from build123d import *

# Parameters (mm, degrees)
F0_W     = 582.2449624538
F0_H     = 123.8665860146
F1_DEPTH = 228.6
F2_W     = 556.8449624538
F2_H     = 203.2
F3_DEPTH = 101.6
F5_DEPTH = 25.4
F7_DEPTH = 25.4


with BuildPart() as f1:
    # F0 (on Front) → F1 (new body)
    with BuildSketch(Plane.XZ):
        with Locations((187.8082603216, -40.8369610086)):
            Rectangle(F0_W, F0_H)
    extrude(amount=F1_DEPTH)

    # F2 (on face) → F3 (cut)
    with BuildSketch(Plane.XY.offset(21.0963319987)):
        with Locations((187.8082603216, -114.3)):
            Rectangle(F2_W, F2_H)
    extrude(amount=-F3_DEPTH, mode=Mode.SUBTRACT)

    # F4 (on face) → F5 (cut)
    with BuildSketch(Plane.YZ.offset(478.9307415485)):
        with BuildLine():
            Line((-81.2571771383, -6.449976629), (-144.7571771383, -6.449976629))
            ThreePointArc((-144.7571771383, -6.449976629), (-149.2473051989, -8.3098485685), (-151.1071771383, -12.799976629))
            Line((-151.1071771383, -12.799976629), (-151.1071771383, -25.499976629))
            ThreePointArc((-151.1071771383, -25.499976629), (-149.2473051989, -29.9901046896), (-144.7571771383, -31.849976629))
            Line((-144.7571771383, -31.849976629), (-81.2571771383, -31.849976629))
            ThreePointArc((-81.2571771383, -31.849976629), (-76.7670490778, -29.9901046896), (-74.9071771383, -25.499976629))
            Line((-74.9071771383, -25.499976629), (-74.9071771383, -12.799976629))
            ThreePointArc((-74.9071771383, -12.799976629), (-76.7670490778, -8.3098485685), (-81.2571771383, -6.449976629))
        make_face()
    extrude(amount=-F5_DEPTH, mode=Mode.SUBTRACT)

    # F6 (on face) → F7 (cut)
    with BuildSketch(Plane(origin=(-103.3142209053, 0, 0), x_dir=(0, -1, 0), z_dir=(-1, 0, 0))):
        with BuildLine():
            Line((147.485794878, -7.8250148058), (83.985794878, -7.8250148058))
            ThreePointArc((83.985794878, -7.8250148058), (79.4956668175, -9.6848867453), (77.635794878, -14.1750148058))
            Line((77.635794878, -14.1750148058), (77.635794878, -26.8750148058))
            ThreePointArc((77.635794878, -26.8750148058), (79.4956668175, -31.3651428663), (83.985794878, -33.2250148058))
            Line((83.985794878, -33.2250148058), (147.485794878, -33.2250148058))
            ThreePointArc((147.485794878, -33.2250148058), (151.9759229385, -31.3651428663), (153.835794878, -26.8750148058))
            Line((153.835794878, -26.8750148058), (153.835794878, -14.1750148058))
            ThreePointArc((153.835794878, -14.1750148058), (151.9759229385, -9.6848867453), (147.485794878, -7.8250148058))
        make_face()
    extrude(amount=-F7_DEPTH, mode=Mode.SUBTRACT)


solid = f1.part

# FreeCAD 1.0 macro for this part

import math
import FreeCAD as App
import Part
import Sketcher
Q = App.Units.Quantity


def add_polygon(sketch, points):
    """Adds a closed chain of lines whose ends are joined by coincident constraints."""
    first, n = sketch.GeometryCount, len(points)
    for a, b in zip(points, points[1:] + points[:1]):
        sketch.addGeometry(Part.LineSegment(App.Vector(*a, 0), App.Vector(*b, 0)), False)
    for i in range(n):
        sketch.addConstraint(Sketcher.Constraint("Coincident", first + i, 2, first + (i + 1) % n, 1))

doc = App.newDocument("Part")
body = doc.addObject("PartDesign::Body", "Body")

sketch1 = doc.addObject("Sketcher::SketchObject", "Sketch")
body.addObject(sketch1)
sketch1.AttachmentSupport = (doc.XZ_Plane, [""])
sketch1.MapMode = "FlatFace"
add_polygon(sketch1, [(-103.314221, 21.096332), (-103.314221, -102.770254), (478.930742, -102.770254), (478.930742, 21.096332)])
sketch1.addConstraint([
    Sketcher.Constraint("Vertical", 0),
    Sketcher.Constraint("Horizontal", 1),
    Sketcher.Constraint("Vertical", 2),
    Sketcher.Constraint("Horizontal", 3),
    Sketcher.Constraint("DistanceX", 1, 1, 1, 2, 582.244962),
    Sketcher.Constraint("DistanceY", 0, 2, 0, 1, 123.866586),
    Sketcher.Constraint("DistanceX", 0, 2, -1, 1, 103.314221),
    Sketcher.Constraint("DistanceY", -1, 1, 2, 2, 21.096332),
])
pad1 = doc.addObject("PartDesign::Pad", "Pad")
body.addObject(pad1)
pad1.Profile = sketch1
pad1.Length = Q("9 in")

sketch2 = doc.addObject("Sketcher::SketchObject", "Sketch001")
body.addObject(sketch2)
sketch2.AttachmentSupport = (doc.XY_Plane, [""])
sketch2.MapMode = "FlatFace"
sketch2.AttachmentOffset = App.Placement(App.Vector(0, 0, 21.096332), App.Rotation())
add_polygon(sketch2, [(-90.614221, -12.7), (-90.614221, -215.9), (466.230742, -215.9), (466.230742, -12.7)])
sketch2.addConstraint([
    Sketcher.Constraint("Vertical", 0),
    Sketcher.Constraint("Horizontal", 1),
    Sketcher.Constraint("Vertical", 2),
    Sketcher.Constraint("Horizontal", 3),
    Sketcher.Constraint("DistanceY", 0, 2, 0, 1, Q("8 in")),
    Sketcher.Constraint("DistanceY", 0, 2, -1, 1, Q("8.5 in")),
    Sketcher.Constraint("DistanceX", 1, 1, 1, 2, 556.844962),
    Sketcher.Constraint("DistanceX", 0, 2, -1, 1, 90.614221),
])
pocket1 = doc.addObject("PartDesign::Pocket", "Pocket")
body.addObject(pocket1)
pocket1.Profile = sketch2
pocket1.Length = Q("4 in")

sketch3 = doc.addObject("Sketcher::SketchObject", "Sketch002")
body.addObject(sketch3)
sketch3.AttachmentSupport = (doc.YZ_Plane, [""])
sketch3.MapMode = "FlatFace"
sketch3.AttachmentOffset = App.Placement(App.Vector(0, 0, 478.930742), App.Rotation())
sketch3.addGeometry([
    Part.LineSegment(App.Vector(-81.257177, -6.449977, 0), App.Vector(-144.757177, -6.449977, 0)),
    Part.ArcOfCircle(Part.Circle(App.Vector(-144.757177, -12.799977, 0), App.Vector(0, 0, 1), 6.35), math.radians(90), math.radians(180)),
    Part.LineSegment(App.Vector(-151.107177, -12.799977, 0), App.Vector(-151.107177, -25.499977, 0)),
    Part.ArcOfCircle(Part.Circle(App.Vector(-144.757177, -25.499977, 0), App.Vector(0, 0, 1), 6.35), math.radians(180), math.radians(270)),
    Part.LineSegment(App.Vector(-144.757177, -31.849977, 0), App.Vector(-81.257177, -31.849977, 0)),
    Part.ArcOfCircle(Part.Circle(App.Vector(-81.257177, -25.499977, 0), App.Vector(0, 0, 1), 6.35), math.radians(-90), math.radians(0)),
    Part.LineSegment(App.Vector(-74.907177, -25.499977, 0), App.Vector(-74.907177, -12.799977, 0)),
    Part.ArcOfCircle(Part.Circle(App.Vector(-81.257177, -12.799977, 0), App.Vector(0, 0, 1), 6.35), math.radians(0), math.radians(90)),
], False)
sketch3.addConstraint([
    Sketcher.Constraint("Tangent", 0, 2, 1, 1),
    Sketcher.Constraint("Tangent", 1, 2, 2, 1),
    Sketcher.Constraint("Tangent", 2, 2, 3, 1),
    Sketcher.Constraint("Tangent", 3, 2, 4, 1),
    Sketcher.Constraint("Tangent", 4, 2, 5, 1),
    Sketcher.Constraint("Tangent", 5, 2, 6, 1),
    Sketcher.Constraint("Tangent", 6, 2, 7, 1),
    Sketcher.Constraint("Tangent", 7, 2, 0, 1),
    Sketcher.Constraint("Horizontal", 0),
    Sketcher.Constraint("Vertical", 2),
    Sketcher.Constraint("Horizontal", 4),
    Sketcher.Constraint("Vertical", 6),
    Sketcher.Constraint("Equal", 1, 3),
    Sketcher.Constraint("Equal", 3, 5),
    Sketcher.Constraint("Equal", 5, 7),
    Sketcher.Constraint("Radius", 1, Q("0.25 in")),
    Sketcher.Constraint("DistanceX", 0, 2, 0, 1, Q("2.5 in")),
    Sketcher.Constraint("DistanceY", 2, 2, 2, 1, Q("0.5 in")),
    Sketcher.Constraint("DistanceX", 1, 3, -1, 1, 144.757177),
    Sketcher.Constraint("DistanceY", 1, 3, -1, 1, 12.799977),
])
pocket2 = doc.addObject("PartDesign::Pocket", "Pocket001")
body.addObject(pocket2)
pocket2.Profile = sketch3
pocket2.Length = Q("1 in")

sketch4 = doc.addObject("Sketcher::SketchObject", "Sketch003")
body.addObject(sketch4)
sketch4.AttachmentSupport = (doc.YZ_Plane, [""])
sketch4.MapMode = "FlatFace"
sketch4.AttachmentOffset = App.Placement(App.Vector(0, 0, -103.314221), App.Rotation())
sketch4.addGeometry([
    Part.LineSegment(App.Vector(-147.485795, -7.825015, 0), App.Vector(-83.985795, -7.825015, 0)),
    Part.ArcOfCircle(Part.Circle(App.Vector(-83.985795, -14.175015, 0), App.Vector(0, 0, 1), 6.35), math.radians(0), math.radians(90)),
    Part.LineSegment(App.Vector(-77.635795, -14.175015, 0), App.Vector(-77.635795, -26.875015, 0)),
    Part.ArcOfCircle(Part.Circle(App.Vector(-83.985795, -26.875015, 0), App.Vector(0, 0, 1), 6.35), math.radians(-90), math.radians(0)),
    Part.LineSegment(App.Vector(-83.985795, -33.225015, 0), App.Vector(-147.485795, -33.225015, 0)),
    Part.ArcOfCircle(Part.Circle(App.Vector(-147.485795, -26.875015, 0), App.Vector(0, 0, 1), 6.35), math.radians(180), math.radians(270)),
    Part.LineSegment(App.Vector(-153.835795, -26.875015, 0), App.Vector(-153.835795, -14.175015, 0)),
    Part.ArcOfCircle(Part.Circle(App.Vector(-147.485795, -14.175015, 0), App.Vector(0, 0, 1), 6.35), math.radians(90), math.radians(180)),
], False)
sketch4.addConstraint([
    Sketcher.Constraint("Tangent", 0, 2, 1, 2),
    Sketcher.Constraint("Tangent", 1, 1, 2, 1),
    Sketcher.Constraint("Tangent", 2, 2, 3, 2),
    Sketcher.Constraint("Tangent", 3, 1, 4, 1),
    Sketcher.Constraint("Tangent", 4, 2, 5, 2),
    Sketcher.Constraint("Tangent", 5, 1, 6, 1),
    Sketcher.Constraint("Tangent", 6, 2, 7, 2),
    Sketcher.Constraint("Tangent", 7, 1, 0, 1),
    Sketcher.Constraint("Horizontal", 0),
    Sketcher.Constraint("Vertical", 2),
    Sketcher.Constraint("Horizontal", 4),
    Sketcher.Constraint("Vertical", 6),
    Sketcher.Constraint("Equal", 1, 3),
    Sketcher.Constraint("Equal", 3, 5),
    Sketcher.Constraint("Equal", 5, 7),
    Sketcher.Constraint("Radius", 1, Q("0.25 in")),
    Sketcher.Constraint("DistanceX", 0, 1, 0, 2, Q("2.5 in")),
    Sketcher.Constraint("DistanceY", 2, 2, 2, 1, Q("0.5 in")),
    Sketcher.Constraint("DistanceX", 1, 3, -1, 1, 83.985795),
    Sketcher.Constraint("DistanceY", 1, 3, -1, 1, 14.175015),
])
pocket3 = doc.addObject("PartDesign::Pocket", "Pocket002")
body.addObject(pocket3)
pocket3.Profile = sketch4
pocket3.Length = Q("1 in")
pocket3.Reversed = True

doc.recompute()
